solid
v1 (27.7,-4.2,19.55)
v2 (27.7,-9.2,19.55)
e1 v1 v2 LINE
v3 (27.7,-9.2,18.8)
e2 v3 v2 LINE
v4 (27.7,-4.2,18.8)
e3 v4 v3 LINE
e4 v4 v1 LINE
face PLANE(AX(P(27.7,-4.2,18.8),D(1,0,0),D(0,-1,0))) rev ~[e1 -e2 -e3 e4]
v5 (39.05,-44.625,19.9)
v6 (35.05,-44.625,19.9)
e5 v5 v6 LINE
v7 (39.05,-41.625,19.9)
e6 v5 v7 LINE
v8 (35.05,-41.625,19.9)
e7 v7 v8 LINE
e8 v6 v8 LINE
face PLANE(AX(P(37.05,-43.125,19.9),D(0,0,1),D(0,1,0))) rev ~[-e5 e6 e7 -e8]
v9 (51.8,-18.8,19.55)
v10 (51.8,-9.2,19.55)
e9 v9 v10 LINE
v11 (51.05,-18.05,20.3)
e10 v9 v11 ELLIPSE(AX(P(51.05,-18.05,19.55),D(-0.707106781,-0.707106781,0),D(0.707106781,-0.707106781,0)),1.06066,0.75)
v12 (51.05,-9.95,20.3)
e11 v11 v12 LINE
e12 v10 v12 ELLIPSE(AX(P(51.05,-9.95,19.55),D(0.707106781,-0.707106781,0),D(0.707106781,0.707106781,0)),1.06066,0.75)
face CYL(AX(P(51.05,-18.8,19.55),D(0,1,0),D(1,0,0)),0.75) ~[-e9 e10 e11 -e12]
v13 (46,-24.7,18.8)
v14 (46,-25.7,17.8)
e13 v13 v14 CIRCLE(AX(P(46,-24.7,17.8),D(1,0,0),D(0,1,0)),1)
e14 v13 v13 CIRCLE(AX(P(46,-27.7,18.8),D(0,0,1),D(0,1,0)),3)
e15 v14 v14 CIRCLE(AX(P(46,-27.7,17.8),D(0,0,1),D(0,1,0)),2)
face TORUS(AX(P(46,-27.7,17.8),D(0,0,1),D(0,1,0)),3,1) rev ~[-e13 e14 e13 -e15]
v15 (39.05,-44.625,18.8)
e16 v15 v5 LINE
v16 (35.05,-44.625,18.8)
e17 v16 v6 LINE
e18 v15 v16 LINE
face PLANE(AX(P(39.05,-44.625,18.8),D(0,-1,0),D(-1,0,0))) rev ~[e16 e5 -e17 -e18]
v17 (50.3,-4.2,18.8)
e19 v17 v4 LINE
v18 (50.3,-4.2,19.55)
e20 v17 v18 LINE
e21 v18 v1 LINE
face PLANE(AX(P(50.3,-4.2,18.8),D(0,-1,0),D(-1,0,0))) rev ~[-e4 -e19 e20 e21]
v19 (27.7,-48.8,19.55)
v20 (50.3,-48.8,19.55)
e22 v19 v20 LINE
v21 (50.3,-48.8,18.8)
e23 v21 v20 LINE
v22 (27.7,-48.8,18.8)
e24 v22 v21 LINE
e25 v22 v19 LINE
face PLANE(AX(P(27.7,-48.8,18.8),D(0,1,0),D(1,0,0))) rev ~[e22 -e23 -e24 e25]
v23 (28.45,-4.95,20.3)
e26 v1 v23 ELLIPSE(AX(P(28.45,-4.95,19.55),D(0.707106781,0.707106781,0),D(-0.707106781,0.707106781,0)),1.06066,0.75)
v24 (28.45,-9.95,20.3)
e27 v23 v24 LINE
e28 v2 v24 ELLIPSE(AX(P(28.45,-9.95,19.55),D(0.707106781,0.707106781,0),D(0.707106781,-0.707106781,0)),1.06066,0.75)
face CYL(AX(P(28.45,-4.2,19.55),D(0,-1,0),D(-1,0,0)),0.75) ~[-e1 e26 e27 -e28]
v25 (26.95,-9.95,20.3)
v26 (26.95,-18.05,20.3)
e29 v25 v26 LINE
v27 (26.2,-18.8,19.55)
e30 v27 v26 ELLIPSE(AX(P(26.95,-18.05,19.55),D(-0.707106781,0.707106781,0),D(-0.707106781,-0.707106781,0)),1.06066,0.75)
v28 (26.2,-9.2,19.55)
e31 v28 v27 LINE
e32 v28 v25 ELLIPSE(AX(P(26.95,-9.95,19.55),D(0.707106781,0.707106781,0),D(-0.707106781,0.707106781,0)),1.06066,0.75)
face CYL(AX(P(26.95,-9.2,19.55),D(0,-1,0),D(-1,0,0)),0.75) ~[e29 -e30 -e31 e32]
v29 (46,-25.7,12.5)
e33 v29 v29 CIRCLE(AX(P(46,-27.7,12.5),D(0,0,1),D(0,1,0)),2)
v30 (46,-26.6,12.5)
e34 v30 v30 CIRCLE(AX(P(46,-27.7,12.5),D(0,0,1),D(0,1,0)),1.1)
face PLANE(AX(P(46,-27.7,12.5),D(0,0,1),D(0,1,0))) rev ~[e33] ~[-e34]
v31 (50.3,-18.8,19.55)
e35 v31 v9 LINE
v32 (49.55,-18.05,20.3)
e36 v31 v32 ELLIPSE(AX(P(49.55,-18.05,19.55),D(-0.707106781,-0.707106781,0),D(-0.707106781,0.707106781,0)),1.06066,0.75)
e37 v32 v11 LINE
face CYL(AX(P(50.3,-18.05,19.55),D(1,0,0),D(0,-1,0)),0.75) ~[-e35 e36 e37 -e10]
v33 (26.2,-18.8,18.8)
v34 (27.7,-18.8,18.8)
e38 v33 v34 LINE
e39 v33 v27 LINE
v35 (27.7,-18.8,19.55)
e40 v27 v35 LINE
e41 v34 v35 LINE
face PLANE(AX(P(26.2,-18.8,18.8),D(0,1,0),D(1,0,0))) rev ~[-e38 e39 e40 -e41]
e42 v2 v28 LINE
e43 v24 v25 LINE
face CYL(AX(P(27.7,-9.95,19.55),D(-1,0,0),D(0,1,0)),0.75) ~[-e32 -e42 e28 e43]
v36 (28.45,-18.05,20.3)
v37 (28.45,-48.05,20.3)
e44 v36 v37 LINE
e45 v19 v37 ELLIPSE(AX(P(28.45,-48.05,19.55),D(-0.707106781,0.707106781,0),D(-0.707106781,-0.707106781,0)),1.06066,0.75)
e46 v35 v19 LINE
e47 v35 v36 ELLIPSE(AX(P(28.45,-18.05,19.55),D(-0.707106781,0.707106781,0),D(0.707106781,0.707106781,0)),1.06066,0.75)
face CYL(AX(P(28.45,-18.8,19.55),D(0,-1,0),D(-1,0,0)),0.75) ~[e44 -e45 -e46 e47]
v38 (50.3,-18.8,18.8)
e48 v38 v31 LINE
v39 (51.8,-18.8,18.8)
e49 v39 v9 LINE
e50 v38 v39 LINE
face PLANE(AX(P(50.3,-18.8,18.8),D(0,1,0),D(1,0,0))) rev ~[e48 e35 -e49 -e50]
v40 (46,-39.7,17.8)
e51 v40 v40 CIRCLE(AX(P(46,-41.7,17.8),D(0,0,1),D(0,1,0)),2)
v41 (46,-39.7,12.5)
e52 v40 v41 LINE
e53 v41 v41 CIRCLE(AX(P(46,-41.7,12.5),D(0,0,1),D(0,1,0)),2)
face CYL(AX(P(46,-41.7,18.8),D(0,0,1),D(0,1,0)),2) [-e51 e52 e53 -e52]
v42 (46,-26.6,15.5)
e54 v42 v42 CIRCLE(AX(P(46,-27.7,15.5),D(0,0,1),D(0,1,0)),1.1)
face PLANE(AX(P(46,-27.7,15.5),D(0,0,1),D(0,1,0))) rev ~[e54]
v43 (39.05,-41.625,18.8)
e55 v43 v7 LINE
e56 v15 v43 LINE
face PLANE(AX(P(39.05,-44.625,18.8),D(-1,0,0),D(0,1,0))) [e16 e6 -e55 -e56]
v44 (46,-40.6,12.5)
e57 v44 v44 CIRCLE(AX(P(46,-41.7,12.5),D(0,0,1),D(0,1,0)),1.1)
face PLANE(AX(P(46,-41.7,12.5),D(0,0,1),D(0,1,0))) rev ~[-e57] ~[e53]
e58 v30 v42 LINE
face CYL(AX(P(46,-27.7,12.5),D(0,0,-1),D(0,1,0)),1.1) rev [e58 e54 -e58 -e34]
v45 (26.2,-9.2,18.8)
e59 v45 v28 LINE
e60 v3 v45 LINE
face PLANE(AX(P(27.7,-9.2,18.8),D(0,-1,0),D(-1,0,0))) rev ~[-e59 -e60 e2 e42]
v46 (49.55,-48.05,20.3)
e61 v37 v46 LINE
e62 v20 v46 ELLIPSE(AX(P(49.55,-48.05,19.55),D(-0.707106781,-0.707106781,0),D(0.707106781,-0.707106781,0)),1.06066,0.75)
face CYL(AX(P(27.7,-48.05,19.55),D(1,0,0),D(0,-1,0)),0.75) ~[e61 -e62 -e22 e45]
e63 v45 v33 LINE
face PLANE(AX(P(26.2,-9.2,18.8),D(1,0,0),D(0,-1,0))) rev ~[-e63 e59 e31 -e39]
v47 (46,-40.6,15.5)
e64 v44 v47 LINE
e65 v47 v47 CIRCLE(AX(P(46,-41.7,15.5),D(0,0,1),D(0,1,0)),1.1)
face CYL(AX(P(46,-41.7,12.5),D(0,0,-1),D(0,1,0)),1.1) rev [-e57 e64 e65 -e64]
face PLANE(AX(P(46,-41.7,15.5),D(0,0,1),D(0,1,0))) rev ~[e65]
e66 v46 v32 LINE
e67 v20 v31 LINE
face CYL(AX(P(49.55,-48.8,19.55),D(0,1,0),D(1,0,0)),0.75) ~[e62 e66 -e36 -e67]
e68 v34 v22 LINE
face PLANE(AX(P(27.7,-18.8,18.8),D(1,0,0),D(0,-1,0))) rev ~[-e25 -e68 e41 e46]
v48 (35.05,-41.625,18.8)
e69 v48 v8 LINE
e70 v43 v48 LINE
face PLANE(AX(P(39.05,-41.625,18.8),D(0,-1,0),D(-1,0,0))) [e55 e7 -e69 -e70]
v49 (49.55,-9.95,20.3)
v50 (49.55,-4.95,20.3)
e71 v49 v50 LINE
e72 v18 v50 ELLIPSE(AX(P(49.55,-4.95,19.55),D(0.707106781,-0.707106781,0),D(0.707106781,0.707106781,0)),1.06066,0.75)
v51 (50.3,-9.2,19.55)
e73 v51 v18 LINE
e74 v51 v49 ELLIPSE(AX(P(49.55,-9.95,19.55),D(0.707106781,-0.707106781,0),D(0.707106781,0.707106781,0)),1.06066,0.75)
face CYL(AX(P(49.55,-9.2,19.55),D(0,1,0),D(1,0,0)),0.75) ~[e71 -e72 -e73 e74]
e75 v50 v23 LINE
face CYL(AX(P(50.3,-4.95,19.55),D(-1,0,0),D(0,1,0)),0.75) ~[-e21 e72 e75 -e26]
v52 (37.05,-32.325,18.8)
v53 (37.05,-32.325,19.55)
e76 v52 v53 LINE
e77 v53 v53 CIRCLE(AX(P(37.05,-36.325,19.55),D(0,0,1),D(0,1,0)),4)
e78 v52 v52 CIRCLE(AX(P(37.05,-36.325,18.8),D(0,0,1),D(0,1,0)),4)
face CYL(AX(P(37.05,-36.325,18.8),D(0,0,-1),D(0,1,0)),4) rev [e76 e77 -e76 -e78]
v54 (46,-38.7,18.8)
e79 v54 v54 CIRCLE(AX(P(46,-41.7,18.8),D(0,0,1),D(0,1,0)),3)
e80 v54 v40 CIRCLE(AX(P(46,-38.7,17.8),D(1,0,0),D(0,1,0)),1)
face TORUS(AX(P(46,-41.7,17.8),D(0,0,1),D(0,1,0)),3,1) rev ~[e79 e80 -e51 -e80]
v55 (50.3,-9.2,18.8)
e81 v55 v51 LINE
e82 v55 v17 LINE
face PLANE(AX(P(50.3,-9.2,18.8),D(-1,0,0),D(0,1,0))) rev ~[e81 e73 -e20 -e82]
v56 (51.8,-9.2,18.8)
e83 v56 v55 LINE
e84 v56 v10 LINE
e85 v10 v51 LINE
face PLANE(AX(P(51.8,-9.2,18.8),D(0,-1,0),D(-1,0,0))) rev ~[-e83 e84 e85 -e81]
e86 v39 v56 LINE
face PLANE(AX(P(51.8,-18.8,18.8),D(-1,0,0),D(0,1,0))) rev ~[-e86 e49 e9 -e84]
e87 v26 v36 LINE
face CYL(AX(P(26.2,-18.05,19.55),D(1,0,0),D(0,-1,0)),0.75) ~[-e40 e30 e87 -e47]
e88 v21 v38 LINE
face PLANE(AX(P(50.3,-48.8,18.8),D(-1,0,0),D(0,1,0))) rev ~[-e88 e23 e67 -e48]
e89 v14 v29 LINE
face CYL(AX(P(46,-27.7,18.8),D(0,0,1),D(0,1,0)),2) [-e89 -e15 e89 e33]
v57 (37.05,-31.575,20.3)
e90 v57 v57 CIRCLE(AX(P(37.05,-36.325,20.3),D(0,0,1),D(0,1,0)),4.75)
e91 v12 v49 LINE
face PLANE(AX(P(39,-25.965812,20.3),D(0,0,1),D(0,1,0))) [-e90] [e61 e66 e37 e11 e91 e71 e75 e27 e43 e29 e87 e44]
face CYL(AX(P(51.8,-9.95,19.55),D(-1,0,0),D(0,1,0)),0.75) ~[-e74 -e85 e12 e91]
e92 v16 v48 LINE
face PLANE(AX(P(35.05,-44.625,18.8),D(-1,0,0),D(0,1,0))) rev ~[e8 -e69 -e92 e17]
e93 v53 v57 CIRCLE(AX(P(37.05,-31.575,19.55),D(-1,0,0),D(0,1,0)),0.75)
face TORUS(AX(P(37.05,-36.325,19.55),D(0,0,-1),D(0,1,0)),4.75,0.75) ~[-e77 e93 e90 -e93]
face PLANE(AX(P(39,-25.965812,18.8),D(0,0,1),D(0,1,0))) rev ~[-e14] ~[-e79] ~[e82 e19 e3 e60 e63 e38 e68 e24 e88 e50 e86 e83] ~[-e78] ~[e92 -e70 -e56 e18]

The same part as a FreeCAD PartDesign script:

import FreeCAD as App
import Part
import Sketcher

V = App.Vector


def edges_at(feature, points):
    """Names of the edges that pass closest to the given points."""
    edges = feature.Shape.Edges
    near = lambda p: min(range(len(edges)), key=lambda i: edges[i].distToShape(Part.Vertex(*p))[0])
    return sorted({f"Edge{near(p) + 1}" for p in points})

doc = App.newDocument("Part")
body = doc.addObject("PartDesign::Body", "Body")

sketch1 = body.newObject("Sketcher::SketchObject", "Sketch")
sketch1.AttachmentSupport = (doc.getObject("XY_Plane"), [""])
sketch1.MapMode = "FlatFace"
sketch1.addGeometry([
    Part.LineSegment(V(29.8, 11.3, 0), V(24.8, 11.3, 0)),
    Part.LineSegment(V(24.8, 11.3, 0), V(24.8, 12.8, 0)),
    Part.LineSegment(V(24.8, 12.8, 0), V(15.2, 12.8, 0)),
    Part.LineSegment(V(15.2, 12.8, 0), V(15.2, 11.3, 0)),
    Part.LineSegment(V(15.2, 11.3, 0), V(-14.8, 11.3, 0)),
    Part.LineSegment(V(-14.8, 11.3, 0), V(-14.8, -11.3, 0)),
    Part.LineSegment(V(-14.8, -11.3, 0), V(15.2, -11.3, 0)),
    Part.LineSegment(V(15.2, -11.3, 0), V(15.2, -12.8, 0)),
    Part.LineSegment(V(15.2, -12.8, 0), V(24.8, -12.8, 0)),
    Part.LineSegment(V(24.8, -12.8, 0), V(24.8, -11.3, 0)),
    Part.LineSegment(V(24.8, -11.3, 0), V(29.8, -11.3, 0)),
    Part.LineSegment(V(29.8, -11.3, 0), V(29.8, 11.3, 0)),
    Part.Circle(V(-2.3, 1.9, 0), V(0, 0, 1), 4),
], False)
sketch1.addConstraint([
    Sketcher.Constraint("Coincident", 0, 2, 1, 1),
    Sketcher.Constraint("Coincident", 1, 2, 2, 1),
    Sketcher.Constraint("Coincident", 2, 2, 3, 1),
    Sketcher.Constraint("Coincident", 3, 2, 4, 1),
    Sketcher.Constraint("Coincident", 4, 2, 5, 1),
    Sketcher.Constraint("Coincident", 5, 2, 6, 1),
    Sketcher.Constraint("Coincident", 6, 2, 7, 1),
    Sketcher.Constraint("Coincident", 7, 2, 8, 1),
    Sketcher.Constraint("Coincident", 8, 2, 9, 1),
    Sketcher.Constraint("Coincident", 9, 2, 10, 1),
    Sketcher.Constraint("Coincident", 10, 2, 11, 1),
    Sketcher.Constraint("Coincident", 11, 2, 0, 1),
    Sketcher.Constraint("Horizontal", 0),
    Sketcher.Constraint("Vertical", 1),
    Sketcher.Constraint("Horizontal", 2),
    Sketcher.Constraint("Vertical", 3),
    Sketcher.Constraint("Horizontal", 4),
    Sketcher.Constraint("Vertical", 5),
    Sketcher.Constraint("Horizontal", 6),
    Sketcher.Constraint("Vertical", 7),
    Sketcher.Constraint("Horizontal", 8),
    Sketcher.Constraint("Vertical", 9),
    Sketcher.Constraint("Horizontal", 10),
    Sketcher.Constraint("Vertical", 11),
    Sketcher.Constraint("Symmetric", 3, 2, 6, 2, -1),
    Sketcher.Constraint("Symmetric", 1, 2, 8, 2, -1),
    Sketcher.Constraint("Horizontal", 0, 2, 3, 2),
    Sketcher.Constraint("Horizontal", 6, 2, 9, 2),
    Sketcher.Constraint("Diameter", 12, 8.0),
    Sketcher.Constraint("DistanceX", 0, 2, 0, 1, 5.0),
    Sketcher.Constraint("DistanceX", 4, 2, 4, 1, 30.0),
    Sketcher.Constraint("DistanceX", 2, 2, 2, 1, 9.6),
    Sketcher.Constraint("DistanceY", 1, 1, 1, 2, 1.5),
    Sketcher.Constraint("DistanceY", 5, 2, 5, 1, 22.6),
    Sketcher.Constraint("DistanceX", -1, 1, 0, 2, 24.8),
    Sketcher.Constraint("DistanceY", -1, 1, 12, 3, 1.95),
    Sketcher.Constraint("DistanceX", 12, 3, -1, 1, 2.325),
])
pad1 = body.newObject("PartDesign::Pad", "Pad")
pad1.Profile = sketch1
pad1.Length = 1.5

sketch2 = body.newObject("Sketcher::SketchObject", "Sketch001")
sketch2.AttachmentSupport = (doc.getObject("XY_Plane"), [""])
sketch2.MapMode = "FlatFace"
sketch2.addGeometry([
    Part.Circle(V(6.3, -7, 0), V(0, 0, 1), 2),
    Part.Circle(V(-7.7, -7, 0), V(0, 0, 1), 2),
], False)
sketch2.addConstraint([
    Sketcher.Constraint("Equal", 0, 1),
    Sketcher.Constraint("Horizontal", 0, 3, 1, 3),
    Sketcher.Constraint("Diameter", 0, 4.0),
    Sketcher.Constraint("DistanceY", 0, 3, -1, 1, 7.0),
    Sketcher.Constraint("DistanceX", 1, 3, 0, 3, 14.0),
    Sketcher.Constraint("DistanceX", -1, 1, 0, 3, 6.3),
])
pad2 = body.newObject("PartDesign::Pad", "Pad001")
pad2.Profile = sketch2
pad2.Length = 6.3
pad2.Reversed = True

sketch3 = body.newObject("Sketcher::SketchObject", "Sketch002")
sketch3.AttachmentSupport = (doc.getObject("XY_Plane"), [""])
sketch3.MapMode = "FlatFace"
sketch3.addGeometry([
    Part.LineSegment(V(-10.6, 4, 0), V(-10.6, -0.1, 0)),
    Part.LineSegment(V(-10.6, -0.1, 0), V(-7.6, -0.1, 0)),
    Part.LineSegment(V(-7.6, -0.1, 0), V(-7.6, 4, 0)),
    Part.LineSegment(V(-7.6, 4, 0), V(-10.6, 4, 0)),
], False)
sketch3.addConstraint([
    Sketcher.Constraint("Coincident", 0, 2, 1, 1),
    Sketcher.Constraint("Coincident", 1, 2, 2, 1),
    Sketcher.Constraint("Coincident", 2, 2, 3, 1),
    Sketcher.Constraint("Coincident", 3, 2, 0, 1),
    Sketcher.Constraint("Vertical", 0),
    Sketcher.Constraint("Horizontal", 1),
    Sketcher.Constraint("Vertical", 2),
    Sketcher.Constraint("Horizontal", 3),
    Sketcher.Constraint("DistanceX", 1, 1, 1, 2, 3.0),
    Sketcher.Constraint("DistanceY", 0, 2, 0, 1, 4.0),
    Sketcher.Constraint("DistanceY", 0, 2, -1, 1, 0.05),
    Sketcher.Constraint("DistanceX", 0, 2, -1, 1, 10.625),
])
pocket1 = body.newObject("PartDesign::Pocket", "Pocket")
pocket1.Profile = sketch3
pocket1.Length = 1.1
pocket1.Reversed = True
doc.recompute()

fillet = body.newObject("PartDesign::Fillet", "Fillet")
fillet.Base = (pocket1, edges_at(pocket1, [(4.3, -7, 0), (-9.7, -7, 0)]))
fillet.Radius = 1

sketch4 = body.newObject("Sketcher::SketchObject", "Sketch003")
sketch4.AttachmentSupport = (doc.getObject("XY_Plane"), [""])
sketch4.MapMode = "FlatFace"
sketch4.AttachmentOffset = App.Placement(V(0, 0, -6.3), App.Rotation())
sketch4.addGeometry([
    Part.Circle(V(-7.7, -7, 0), V(0, 0, 1), 1.1),
    Part.Circle(V(6.3, -7, 0), V(0, 0, 1), 1.1),
], False)
sketch4.addConstraint([
    Sketcher.Constraint("Equal", 0, 1),
    Sketcher.Constraint("Horizontal", 0, 3, 1, 3),
    Sketcher.Constraint("Diameter", 0, 2.2),
    Sketcher.Constraint("DistanceY", 0, 3, -1, 1, 7.0),
    Sketcher.Constraint("DistanceX", 0, 3, 1, 3, 14.0),
    Sketcher.Constraint("DistanceX", 0, 3, -1, 1, 7.7),
])
pocket2 = body.newObject("PartDesign::Pocket", "Pocket001")
pocket2.Profile = sketch4
pocket2.Length = 3
pocket2.Reversed = True
doc.recompute()

fillet2 = body.newObject("PartDesign::Fillet", "Fillet001")
fillet2.Base = (pocket2, edges_at(pocket2, [
    (27.3, -11.3, 1.5),
    (29.8, 0, 1.5),
    (27.3, 11.3, 1.5),
    (24.8, 12.05, 1.5),
    (20, 12.8, 1.5),
    (15.2, 12.05, 1.5),
    (0.2, 11.3, 1.5),
    (-14.8, 0, 1.5),
    (0.2, -11.3, 1.5),
    (15.2, -12.05, 1.5),
    (20, -12.8, 1.5),
    (24.8, -12.05, 1.5),
    (-6.325, 1.95, 1.5),
]))
fillet2.Radius = 0.75
body2 = doc.addObject("PartDesign::Body", "Body001")
doc.recompute()

body.Placement = App.Placement(V(39, -34, 18.8), App.Rotation(V(0, 0, 1), 90))
boolean = body2.newObject("PartDesign::Boolean", "Boolean")
boolean.Type = "Fuse"
boolean.addObjects([body])

doc.recompute()
